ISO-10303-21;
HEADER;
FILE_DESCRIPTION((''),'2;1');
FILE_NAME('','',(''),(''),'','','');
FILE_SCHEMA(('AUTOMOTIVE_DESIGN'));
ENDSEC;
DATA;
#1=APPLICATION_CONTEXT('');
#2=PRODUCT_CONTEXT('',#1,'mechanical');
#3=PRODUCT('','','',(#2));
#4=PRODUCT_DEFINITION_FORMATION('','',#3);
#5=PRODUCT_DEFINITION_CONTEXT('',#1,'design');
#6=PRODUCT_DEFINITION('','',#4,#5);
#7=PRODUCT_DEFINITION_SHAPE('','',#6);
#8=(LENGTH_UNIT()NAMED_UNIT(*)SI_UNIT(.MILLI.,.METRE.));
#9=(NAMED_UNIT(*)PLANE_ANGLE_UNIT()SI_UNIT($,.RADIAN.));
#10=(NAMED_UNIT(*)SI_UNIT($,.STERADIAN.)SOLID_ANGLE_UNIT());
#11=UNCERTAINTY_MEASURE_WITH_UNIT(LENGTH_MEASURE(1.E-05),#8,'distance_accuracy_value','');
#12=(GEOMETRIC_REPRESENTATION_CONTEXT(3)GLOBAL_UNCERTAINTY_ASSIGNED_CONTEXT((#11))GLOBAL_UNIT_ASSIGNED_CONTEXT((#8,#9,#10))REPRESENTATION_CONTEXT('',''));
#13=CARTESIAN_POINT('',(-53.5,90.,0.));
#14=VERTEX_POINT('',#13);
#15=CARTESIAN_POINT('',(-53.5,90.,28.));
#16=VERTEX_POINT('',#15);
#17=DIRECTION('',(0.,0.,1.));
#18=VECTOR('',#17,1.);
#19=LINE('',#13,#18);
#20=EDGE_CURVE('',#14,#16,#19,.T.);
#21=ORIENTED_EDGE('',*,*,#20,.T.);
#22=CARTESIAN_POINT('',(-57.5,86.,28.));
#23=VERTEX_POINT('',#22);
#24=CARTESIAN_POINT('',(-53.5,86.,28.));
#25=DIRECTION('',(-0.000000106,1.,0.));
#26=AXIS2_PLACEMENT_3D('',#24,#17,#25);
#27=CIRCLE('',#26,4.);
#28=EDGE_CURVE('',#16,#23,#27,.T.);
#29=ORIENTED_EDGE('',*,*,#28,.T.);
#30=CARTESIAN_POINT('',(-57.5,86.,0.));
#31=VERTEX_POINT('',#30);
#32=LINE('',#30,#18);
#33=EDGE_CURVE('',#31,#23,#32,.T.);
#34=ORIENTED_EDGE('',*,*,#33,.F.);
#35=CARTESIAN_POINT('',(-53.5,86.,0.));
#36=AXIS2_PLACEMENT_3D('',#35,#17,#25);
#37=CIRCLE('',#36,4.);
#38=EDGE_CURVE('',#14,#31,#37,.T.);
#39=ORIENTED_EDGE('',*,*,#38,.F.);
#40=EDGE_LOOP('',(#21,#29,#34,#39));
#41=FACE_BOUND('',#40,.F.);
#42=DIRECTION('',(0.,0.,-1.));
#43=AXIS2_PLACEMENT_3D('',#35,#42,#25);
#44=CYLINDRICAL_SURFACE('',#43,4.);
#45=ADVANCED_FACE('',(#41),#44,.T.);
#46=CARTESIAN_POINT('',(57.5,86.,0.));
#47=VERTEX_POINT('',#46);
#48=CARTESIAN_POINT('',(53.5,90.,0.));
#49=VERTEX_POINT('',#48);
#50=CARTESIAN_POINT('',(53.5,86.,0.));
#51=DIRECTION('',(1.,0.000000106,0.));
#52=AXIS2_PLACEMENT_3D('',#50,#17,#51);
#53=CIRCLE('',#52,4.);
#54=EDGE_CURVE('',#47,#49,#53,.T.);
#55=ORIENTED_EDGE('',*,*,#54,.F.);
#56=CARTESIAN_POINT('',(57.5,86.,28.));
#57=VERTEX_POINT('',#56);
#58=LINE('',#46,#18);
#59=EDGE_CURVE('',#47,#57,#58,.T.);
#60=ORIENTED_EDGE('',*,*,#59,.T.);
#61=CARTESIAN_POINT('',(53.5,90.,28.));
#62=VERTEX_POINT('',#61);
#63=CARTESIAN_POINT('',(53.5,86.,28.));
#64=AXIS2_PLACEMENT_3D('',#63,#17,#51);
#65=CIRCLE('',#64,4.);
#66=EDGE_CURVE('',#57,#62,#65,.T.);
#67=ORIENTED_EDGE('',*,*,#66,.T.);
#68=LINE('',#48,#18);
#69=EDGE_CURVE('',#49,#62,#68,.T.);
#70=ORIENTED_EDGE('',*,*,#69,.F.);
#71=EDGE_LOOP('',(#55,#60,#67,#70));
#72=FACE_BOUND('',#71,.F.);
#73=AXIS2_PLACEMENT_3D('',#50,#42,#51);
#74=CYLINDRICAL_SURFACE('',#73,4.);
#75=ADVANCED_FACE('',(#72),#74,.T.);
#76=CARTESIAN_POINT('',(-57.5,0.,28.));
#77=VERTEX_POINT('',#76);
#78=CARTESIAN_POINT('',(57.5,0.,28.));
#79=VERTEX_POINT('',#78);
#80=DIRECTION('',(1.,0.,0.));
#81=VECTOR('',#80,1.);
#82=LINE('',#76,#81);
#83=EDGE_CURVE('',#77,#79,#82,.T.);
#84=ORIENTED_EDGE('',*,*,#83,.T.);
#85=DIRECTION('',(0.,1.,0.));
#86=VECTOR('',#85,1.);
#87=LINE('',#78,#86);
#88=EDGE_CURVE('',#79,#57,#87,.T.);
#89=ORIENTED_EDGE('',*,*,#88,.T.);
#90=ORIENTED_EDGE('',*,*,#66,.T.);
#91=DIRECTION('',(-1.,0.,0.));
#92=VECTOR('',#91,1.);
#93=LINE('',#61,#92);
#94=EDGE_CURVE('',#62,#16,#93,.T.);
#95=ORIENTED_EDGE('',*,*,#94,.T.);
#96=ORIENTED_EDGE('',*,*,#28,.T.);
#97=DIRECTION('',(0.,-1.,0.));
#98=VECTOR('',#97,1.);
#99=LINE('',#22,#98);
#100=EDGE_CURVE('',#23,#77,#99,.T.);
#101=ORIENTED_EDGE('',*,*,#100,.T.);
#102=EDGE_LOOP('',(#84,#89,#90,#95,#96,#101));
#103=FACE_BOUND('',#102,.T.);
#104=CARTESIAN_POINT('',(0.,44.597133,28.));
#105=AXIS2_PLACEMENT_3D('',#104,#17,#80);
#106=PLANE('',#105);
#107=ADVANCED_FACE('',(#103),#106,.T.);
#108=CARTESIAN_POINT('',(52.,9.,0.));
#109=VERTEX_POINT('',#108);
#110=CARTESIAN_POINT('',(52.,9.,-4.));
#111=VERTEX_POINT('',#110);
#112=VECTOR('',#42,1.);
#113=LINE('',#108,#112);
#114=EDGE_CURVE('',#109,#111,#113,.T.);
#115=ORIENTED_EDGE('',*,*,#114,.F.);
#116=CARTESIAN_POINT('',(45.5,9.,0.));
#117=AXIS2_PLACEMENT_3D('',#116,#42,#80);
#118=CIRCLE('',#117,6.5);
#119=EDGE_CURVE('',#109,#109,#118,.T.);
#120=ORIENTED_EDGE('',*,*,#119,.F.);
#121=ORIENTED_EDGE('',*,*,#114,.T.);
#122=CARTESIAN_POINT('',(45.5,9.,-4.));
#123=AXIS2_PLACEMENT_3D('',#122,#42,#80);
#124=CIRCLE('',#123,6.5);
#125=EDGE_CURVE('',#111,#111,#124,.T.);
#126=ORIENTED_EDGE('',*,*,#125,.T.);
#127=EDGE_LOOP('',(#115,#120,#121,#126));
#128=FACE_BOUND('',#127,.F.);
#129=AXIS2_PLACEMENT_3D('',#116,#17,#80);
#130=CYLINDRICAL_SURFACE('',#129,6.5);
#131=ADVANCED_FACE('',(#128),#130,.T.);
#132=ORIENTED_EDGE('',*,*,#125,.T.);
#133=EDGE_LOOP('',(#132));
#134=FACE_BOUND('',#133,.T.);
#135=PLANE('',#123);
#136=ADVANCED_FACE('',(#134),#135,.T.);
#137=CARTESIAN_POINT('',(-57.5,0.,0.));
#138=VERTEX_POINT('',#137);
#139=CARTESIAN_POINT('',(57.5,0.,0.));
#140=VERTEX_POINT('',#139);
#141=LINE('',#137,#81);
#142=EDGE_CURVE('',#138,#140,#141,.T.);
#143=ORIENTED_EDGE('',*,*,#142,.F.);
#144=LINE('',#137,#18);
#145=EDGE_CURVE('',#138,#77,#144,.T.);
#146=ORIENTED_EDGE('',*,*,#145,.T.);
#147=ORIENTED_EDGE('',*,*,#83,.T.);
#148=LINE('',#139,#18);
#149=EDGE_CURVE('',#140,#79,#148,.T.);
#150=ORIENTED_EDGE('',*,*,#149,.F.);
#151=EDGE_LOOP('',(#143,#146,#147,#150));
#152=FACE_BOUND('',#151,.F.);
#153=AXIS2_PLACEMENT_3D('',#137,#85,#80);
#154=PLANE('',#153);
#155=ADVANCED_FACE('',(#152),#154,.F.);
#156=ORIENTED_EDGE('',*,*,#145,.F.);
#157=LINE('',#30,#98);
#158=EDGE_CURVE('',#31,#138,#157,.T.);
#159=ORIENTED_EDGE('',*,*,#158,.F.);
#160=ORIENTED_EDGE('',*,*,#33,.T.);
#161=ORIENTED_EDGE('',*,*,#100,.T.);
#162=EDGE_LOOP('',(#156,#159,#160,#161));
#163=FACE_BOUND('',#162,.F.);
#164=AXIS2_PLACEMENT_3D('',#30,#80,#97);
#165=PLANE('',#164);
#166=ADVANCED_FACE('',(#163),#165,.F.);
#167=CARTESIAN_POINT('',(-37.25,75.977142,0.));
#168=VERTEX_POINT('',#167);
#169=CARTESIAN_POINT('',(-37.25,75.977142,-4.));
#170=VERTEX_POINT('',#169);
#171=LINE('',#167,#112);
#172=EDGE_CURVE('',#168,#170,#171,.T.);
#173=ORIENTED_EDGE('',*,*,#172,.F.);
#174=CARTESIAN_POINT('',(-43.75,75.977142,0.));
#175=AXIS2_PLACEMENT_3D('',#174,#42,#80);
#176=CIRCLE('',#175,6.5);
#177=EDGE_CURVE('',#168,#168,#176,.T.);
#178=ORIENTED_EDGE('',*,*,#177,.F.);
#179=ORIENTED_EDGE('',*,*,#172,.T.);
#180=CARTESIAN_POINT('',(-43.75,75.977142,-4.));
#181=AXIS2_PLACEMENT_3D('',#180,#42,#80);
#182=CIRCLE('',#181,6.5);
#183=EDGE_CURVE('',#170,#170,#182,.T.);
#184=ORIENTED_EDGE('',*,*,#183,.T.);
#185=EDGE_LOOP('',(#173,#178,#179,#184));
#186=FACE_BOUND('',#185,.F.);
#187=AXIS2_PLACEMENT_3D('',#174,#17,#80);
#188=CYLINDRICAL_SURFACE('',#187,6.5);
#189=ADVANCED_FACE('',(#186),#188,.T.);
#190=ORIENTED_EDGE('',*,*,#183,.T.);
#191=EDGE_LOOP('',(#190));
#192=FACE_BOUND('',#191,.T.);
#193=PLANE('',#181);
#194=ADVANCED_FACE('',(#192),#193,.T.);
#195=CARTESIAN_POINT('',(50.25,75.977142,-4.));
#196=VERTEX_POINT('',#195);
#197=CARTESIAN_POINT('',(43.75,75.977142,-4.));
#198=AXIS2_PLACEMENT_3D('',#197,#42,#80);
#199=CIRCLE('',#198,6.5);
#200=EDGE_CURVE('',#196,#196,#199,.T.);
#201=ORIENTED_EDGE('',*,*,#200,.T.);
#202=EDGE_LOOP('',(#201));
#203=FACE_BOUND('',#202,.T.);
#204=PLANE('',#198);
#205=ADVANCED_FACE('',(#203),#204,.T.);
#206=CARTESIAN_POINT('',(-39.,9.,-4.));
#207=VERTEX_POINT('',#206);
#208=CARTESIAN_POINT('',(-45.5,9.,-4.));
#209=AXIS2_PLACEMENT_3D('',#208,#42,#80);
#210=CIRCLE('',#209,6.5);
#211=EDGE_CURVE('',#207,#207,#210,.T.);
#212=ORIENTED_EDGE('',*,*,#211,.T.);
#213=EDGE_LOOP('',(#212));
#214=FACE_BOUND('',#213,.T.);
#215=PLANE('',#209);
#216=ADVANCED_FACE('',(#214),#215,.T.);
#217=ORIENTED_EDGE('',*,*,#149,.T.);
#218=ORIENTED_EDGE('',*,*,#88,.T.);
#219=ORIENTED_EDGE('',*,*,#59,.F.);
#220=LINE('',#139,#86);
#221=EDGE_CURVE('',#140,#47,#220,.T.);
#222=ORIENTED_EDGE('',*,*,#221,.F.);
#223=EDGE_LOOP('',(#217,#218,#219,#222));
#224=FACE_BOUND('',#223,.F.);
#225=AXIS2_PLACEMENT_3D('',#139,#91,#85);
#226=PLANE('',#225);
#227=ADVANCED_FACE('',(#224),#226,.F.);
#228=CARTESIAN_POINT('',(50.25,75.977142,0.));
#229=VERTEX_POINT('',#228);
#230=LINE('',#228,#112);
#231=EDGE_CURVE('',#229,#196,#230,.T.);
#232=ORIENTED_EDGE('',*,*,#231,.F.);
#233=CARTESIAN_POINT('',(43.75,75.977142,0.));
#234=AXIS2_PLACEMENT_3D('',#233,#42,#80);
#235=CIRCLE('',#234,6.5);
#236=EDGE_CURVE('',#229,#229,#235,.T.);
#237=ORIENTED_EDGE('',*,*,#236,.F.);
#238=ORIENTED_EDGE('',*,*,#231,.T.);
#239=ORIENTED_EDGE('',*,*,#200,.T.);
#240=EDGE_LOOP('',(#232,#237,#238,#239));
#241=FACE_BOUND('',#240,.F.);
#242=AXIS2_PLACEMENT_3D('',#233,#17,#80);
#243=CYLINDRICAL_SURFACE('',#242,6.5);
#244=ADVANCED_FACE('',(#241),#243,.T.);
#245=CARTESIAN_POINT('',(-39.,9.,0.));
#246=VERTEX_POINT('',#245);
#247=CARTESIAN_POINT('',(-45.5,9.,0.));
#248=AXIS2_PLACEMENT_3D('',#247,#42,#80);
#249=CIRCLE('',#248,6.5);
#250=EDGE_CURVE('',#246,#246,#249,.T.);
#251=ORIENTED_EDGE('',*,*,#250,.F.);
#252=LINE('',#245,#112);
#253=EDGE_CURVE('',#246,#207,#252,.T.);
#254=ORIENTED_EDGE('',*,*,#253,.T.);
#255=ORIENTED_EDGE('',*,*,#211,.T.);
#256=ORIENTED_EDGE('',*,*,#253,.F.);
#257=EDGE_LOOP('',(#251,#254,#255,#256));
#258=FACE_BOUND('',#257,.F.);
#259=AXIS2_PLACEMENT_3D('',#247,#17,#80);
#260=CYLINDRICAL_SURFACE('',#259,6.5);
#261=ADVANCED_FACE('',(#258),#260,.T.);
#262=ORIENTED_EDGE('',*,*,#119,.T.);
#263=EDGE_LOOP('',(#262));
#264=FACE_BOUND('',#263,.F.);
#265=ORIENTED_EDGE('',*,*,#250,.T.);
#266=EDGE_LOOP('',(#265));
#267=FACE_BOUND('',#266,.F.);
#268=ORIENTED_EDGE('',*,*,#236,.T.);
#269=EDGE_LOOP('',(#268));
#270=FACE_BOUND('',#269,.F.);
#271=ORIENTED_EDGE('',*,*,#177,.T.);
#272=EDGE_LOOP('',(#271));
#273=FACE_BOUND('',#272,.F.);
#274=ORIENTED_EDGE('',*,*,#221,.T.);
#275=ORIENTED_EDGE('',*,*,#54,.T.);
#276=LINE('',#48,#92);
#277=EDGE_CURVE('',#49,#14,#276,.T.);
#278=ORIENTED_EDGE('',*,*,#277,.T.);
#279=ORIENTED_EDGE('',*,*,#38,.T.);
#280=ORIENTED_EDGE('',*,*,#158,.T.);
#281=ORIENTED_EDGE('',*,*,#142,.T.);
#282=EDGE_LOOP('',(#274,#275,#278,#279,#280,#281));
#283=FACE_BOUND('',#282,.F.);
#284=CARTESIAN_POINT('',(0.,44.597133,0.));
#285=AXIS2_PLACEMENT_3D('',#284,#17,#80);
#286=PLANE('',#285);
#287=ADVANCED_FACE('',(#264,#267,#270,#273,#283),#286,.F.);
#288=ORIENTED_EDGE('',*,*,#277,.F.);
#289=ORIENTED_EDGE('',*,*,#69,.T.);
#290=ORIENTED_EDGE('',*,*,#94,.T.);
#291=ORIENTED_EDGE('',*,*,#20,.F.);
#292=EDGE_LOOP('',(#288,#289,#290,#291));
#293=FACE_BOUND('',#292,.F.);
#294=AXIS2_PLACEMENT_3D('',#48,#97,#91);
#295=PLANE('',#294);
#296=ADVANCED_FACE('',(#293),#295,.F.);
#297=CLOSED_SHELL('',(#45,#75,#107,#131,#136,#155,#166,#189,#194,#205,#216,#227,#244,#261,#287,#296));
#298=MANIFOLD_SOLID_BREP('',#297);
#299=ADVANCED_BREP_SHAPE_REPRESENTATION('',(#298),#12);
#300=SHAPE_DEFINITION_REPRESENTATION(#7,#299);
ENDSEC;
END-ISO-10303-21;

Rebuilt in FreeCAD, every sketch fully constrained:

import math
import FreeCAD as App
import Part
import Sketcher
from FreeCAD import Vector

doc = App.newDocument("Part")
params = doc.addObject("Spreadsheet::Sheet", "Params")
for row, (alias, value) in enumerate([
    ("sketch1_radius", "4 mm"),
    ("sketch1_width", "107 mm"),
    ("sketch1_height", "86 mm"),
    ("pad1_length", "28 mm"),
    ("sketch2_diameter", "13 mm"),
    ("pad2_length", "4 mm"),
], start=1):
    params.set(f"A{row}", alias)
    params.set(f"B{row}", "=" + value)
    params.setAlias(f"B{row}", alias)

body = doc.addObject("PartDesign::Body", "Body")

# Sketch on XY plane
sketch1 = body.newObject("Sketcher::SketchObject", "Sketch")
sketch1.AttachmentSupport = (doc.getObject("XY_Plane"), [""])
sketch1.MapMode = "FlatFace"
sketch1.addGeometry([
    Part.LineSegment(Vector(53.5, 90, 0), Vector(-53.5, 90, 0)),  # 0
    Part.ArcOfCircle(Part.Circle(Vector(-53.5, 86, 0), Vector(0, 0, 1), 4), math.radians(90), math.radians(180)),  # 1
    Part.LineSegment(Vector(-57.5, 86, 0), Vector(-57.5, 0, 0)),  # 2
    Part.LineSegment(Vector(-57.5, 0, 0), Vector(57.5, 0, 0)),  # 3
    Part.LineSegment(Vector(57.5, 0, 0), Vector(57.5, 86, 0)),  # 4
    Part.ArcOfCircle(Part.Circle(Vector(53.5, 86, 0), Vector(0, 0, 1), 4), math.radians(0), math.radians(90)),  # 5
], False)
sketch1.addConstraint([
    Sketcher.Constraint("Tangent", 0, 2, 1, 1),
    Sketcher.Constraint("Tangent", 1, 2, 2, 1),
    Sketcher.Constraint("Coincident", 2, 2, 3, 1),
    Sketcher.Constraint("Coincident", 3, 2, 4, 1),
    Sketcher.Constraint("Tangent", 4, 2, 5, 1),
    Sketcher.Constraint("Tangent", 5, 2, 0, 1),
    Sketcher.Constraint("Horizontal", 0),
    Sketcher.Constraint("Vertical", 2),
    Sketcher.Constraint("Horizontal", 3),
    Sketcher.Constraint("Vertical", 4),
    Sketcher.Constraint("Equal", 1, 5),
    Sketcher.Constraint("Symmetric", 2, 2, 3, 2, -1, 1),
    Sketcher.Constraint("Radius", 1, 4.0),
    Sketcher.Constraint("DistanceX", 0, 2, 0, 1, 107.0),
    Sketcher.Constraint("DistanceY", 2, 2, 2, 1, 86.0),
])
sketch1.setExpression("Constraints[12]", "Params.sketch1_radius")
sketch1.setExpression("Constraints[13]", "Params.sketch1_width")
sketch1.setExpression("Constraints[14]", "Params.sketch1_height")
pad1 = body.newObject("PartDesign::Pad", "Pad")
pad1.Profile = sketch1
pad1.setExpression("Length", "Params.pad1_length")

# Sketch on XY plane
sketch2 = body.newObject("Sketcher::SketchObject", "Sketch001")
sketch2.AttachmentSupport = (doc.getObject("XY_Plane"), [""])
sketch2.MapMode = "FlatFace"
sketch2.addGeometry([
    Part.Circle(Vector(-46, 9, 0), Vector(0, 0, 1), 6),
    Part.Circle(Vector(-44, 76, 0), Vector(0, 0, 1), 6),
    Part.Circle(Vector(46, 9, 0), Vector(0, 0, 1), 6),
    Part.Circle(Vector(44, 76, 0), Vector(0, 0, 1), 6),
], False)
sketch2.addConstraint([
    Sketcher.Constraint("Equal", 0, 1),
    Sketcher.Constraint("Equal", 1, 2),
    Sketcher.Constraint("Equal", 2, 3),
    Sketcher.Constraint("Symmetric", 0, 3, 2, 3, -2),
    Sketcher.Constraint("Symmetric", 1, 3, 3, 3, -2),
    Sketcher.Constraint("Diameter", 0, 13.0),
    Sketcher.Constraint("DistanceY", -1, 1, 0, 3, 9.0),
    Sketcher.Constraint("DistanceX", 0, 3, 2, 3, 91.0),
    Sketcher.Constraint("DistanceX", 1, 3, 3, 3, 87.5),
    Sketcher.Constraint("DistanceY", -1, 1, 1, 3, 75.977142),
])
sketch2.setExpression("Constraints[5]", "Params.sketch2_diameter")
pad2 = body.newObject("PartDesign::Pad", "Pad001")
pad2.Profile = sketch2
pad2.setExpression("Length", "Params.pad2_length")
pad2.Reversed = True

doc.recompute()
